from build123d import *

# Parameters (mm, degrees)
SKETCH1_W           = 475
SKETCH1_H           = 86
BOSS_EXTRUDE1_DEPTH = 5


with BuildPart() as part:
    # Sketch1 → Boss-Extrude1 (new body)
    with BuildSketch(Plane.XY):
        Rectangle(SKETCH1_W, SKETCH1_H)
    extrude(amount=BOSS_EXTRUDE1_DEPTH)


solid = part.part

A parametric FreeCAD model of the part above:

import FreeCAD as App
import Part
import Sketcher
Q = App.Units.Quantity


def add_polygon(sketch, points):
    """Adds a closed chain of lines whose ends are joined by coincident constraints."""
    first, n = sketch.GeometryCount, len(points)
    for a, b in zip(points, points[1:] + points[:1]):
        sketch.addGeometry(Part.LineSegment(App.Vector(*a, 0), App.Vector(*b, 0)), False)
    for i in range(n):
        sketch.addConstraint(Sketcher.Constraint("Coincident", first + i, 2, first + (i + 1) % n, 1))

doc = App.newDocument("Part")
params = doc.addObject("Spreadsheet::Sheet", "Params")
for row, (alias, value) in enumerate([
    ("sketch1_width", "475 mm"),
    ("sketch1_height", "86 mm"),
    ("pad1_length", "5 mm"),
], start=1):
    params.set(f"A{row}", alias)
    params.set(f"B{row}", "=" + value)
    params.setAlias(f"B{row}", alias)

body = doc.addObject("PartDesign::Body", "Body")

sketch1 = doc.addObject("Sketcher::SketchObject", "Sketch")
body.addObject(sketch1)
sketch1.AttachmentSupport = (doc.XY_Plane, [""])
sketch1.MapMode = "FlatFace"
add_polygon(sketch1, [(-238, 43), (-238, -43), (238, -43), (238, 43)])
sketch1.addConstraint([
    Sketcher.Constraint("Vertical", 0),
    Sketcher.Constraint("Horizontal", 1),
    Sketcher.Constraint("Vertical", 2),
    Sketcher.Constraint("Horizontal", 3),
    Sketcher.Constraint("Symmetric", 0, 2, 2, 2, -1, 1),
    Sketcher.Constraint("DistanceX", 1, 1, 1, 2, Q("475 mm")),
    Sketcher.Constraint("DistanceY", 0, 2, 0, 1, Q("86 mm")),
])
sketch1.setExpression("Constraints[9]", "Params.sketch1_width")
sketch1.setExpression("Constraints[10]", "Params.sketch1_height")
pad1 = doc.addObject("PartDesign::Pad", "Pad")
body.addObject(pad1)
pad1.Profile = sketch1
pad1.setExpression("Length", "Params.pad1_length")

doc.recompute()
